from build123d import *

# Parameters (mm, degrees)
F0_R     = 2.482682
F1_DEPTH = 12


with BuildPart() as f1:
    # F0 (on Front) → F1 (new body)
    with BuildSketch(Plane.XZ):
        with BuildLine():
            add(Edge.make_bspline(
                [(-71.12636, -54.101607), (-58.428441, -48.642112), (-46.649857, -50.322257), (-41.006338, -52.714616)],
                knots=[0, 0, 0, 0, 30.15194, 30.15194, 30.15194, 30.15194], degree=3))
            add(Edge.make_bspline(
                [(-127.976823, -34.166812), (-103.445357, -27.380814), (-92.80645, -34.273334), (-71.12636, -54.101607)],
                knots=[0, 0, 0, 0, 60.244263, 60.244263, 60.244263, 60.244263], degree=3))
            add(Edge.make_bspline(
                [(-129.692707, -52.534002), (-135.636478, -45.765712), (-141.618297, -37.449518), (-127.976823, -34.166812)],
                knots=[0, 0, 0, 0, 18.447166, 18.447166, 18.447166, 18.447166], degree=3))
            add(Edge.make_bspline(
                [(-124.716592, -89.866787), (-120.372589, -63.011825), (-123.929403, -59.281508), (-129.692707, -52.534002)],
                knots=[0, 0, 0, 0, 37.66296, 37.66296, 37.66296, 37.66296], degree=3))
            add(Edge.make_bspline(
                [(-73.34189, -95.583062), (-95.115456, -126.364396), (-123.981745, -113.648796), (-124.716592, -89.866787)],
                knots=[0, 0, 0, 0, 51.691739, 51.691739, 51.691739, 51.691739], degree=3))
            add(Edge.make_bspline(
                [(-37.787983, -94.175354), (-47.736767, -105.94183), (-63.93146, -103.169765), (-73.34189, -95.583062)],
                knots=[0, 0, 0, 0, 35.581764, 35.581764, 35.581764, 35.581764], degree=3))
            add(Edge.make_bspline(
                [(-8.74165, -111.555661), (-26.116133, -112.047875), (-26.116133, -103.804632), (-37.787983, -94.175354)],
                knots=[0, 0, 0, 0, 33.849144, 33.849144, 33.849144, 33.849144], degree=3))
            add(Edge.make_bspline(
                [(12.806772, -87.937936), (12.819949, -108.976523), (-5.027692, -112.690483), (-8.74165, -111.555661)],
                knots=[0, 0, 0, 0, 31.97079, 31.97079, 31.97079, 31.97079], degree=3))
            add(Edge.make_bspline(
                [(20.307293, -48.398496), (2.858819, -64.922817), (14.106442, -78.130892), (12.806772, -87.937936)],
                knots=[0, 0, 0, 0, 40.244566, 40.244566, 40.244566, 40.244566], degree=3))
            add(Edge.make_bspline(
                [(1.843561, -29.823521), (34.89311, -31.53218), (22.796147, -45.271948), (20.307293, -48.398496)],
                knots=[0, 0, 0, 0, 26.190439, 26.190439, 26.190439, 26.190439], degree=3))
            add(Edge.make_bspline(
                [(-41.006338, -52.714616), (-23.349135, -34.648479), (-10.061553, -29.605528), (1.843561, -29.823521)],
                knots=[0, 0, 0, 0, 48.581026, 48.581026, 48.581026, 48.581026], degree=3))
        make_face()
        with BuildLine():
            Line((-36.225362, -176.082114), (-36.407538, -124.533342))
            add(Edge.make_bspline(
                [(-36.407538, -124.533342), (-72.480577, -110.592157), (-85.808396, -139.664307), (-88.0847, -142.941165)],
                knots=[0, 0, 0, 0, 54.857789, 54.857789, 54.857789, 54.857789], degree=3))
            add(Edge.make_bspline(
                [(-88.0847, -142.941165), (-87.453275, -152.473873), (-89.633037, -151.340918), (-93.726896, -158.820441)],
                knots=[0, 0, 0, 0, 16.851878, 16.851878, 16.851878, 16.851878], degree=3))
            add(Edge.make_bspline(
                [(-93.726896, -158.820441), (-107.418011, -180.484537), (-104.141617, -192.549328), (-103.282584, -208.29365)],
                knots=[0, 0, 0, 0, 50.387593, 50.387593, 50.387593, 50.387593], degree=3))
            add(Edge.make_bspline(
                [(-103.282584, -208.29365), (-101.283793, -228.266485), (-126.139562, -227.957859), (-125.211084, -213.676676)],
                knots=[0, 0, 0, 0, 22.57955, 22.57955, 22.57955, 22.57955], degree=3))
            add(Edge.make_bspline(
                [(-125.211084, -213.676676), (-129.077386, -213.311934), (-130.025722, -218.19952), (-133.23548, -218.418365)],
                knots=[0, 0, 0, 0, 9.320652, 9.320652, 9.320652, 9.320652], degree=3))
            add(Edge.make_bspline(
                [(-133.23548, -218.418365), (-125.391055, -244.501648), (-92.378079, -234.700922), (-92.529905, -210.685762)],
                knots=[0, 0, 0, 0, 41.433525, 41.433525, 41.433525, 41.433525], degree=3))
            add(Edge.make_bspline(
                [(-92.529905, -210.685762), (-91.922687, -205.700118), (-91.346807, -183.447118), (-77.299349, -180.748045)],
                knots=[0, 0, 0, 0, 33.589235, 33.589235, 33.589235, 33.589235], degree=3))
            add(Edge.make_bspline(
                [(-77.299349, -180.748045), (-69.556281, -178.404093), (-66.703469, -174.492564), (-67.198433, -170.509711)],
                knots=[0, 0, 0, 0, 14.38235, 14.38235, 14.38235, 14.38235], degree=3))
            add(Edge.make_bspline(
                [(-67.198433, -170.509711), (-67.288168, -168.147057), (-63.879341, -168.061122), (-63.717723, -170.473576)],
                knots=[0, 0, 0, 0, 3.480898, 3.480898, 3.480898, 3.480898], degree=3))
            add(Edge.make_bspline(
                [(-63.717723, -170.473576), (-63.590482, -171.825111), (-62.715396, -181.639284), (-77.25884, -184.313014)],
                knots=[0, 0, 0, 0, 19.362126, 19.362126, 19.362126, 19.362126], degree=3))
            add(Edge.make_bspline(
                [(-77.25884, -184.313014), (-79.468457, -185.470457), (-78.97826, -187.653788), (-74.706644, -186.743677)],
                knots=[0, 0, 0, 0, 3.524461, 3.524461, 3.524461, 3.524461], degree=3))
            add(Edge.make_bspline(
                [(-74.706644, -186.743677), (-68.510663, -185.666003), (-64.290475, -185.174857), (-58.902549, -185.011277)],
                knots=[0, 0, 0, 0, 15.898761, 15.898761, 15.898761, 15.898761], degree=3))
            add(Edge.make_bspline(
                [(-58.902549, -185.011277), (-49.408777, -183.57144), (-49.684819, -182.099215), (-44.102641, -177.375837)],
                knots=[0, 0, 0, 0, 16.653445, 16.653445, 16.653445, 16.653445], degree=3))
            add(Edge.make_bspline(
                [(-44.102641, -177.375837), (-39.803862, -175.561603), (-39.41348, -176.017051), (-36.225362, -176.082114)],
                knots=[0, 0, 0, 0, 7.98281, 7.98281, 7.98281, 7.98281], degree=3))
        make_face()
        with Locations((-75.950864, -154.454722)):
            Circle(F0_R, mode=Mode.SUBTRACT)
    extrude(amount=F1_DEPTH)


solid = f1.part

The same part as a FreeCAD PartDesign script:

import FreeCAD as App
import Part
import Sketcher

V = App.Vector

doc = App.newDocument("Part")
params = doc.addObject("Spreadsheet::Sheet", "Params")
for row, (alias, value) in enumerate([
    ("pad1_length", "12 mm"),
], start=1):
    params.set(f"A{row}", alias)
    params.set(f"B{row}", "=" + value)
    params.setAlias(f"B{row}", alias)

body = doc.addObject("PartDesign::Body", "Body")
body.AllowCompound = True

sketch1 = body.newObject("Sketcher::SketchObject", "Sketch")
sketch1.AttachmentSupport = (doc.getObject("XZ_Plane"), [""])
sketch1.MapMode = "FlatFace"
sketch1.addGeometry([
    Part.BSplineCurve([V(-71.12636, -54.101607, 0), V(-58.428441, -48.642112, 0), V(-46.649857, -50.322257, 0), V(-41.006338, -52.714616, 0)], [4, 4], [0, 30.15194], False, 3, [1, 1, 1, 1], False),
    Part.BSplineCurve([V(-127.976823, -34.166812, 0), V(-103.445357, -27.380814, 0), V(-92.80645, -34.273334, 0), V(-71.12636, -54.101607, 0)], [4, 4], [0, 60.244263], False, 3, [1, 1, 1, 1], False),
    Part.BSplineCurve([V(-129.692707, -52.534002, 0), V(-135.636478, -45.765712, 0), V(-141.618297, -37.449518, 0), V(-127.976823, -34.166812, 0)], [4, 4], [0, 18.447166], False, 3, [1, 1, 1, 1], False),
    Part.BSplineCurve([V(-124.716592, -89.866787, 0), V(-120.372589, -63.011825, 0), V(-123.929403, -59.281508, 0), V(-129.692707, -52.534002, 0)], [4, 4], [0, 37.66296], False, 3, [1, 1, 1, 1], False),
    Part.BSplineCurve([V(-73.34189, -95.583062, 0), V(-95.115456, -126.364396, 0), V(-123.981745, -113.648796, 0), V(-124.716592, -89.866787, 0)], [4, 4], [0, 51.691739], False, 3, [1, 1, 1, 1], False),
    Part.BSplineCurve([V(-37.787983, -94.175354, 0), V(-47.736767, -105.94183, 0), V(-63.93146, -103.169765, 0), V(-73.34189, -95.583062, 0)], [4, 4], [0, 35.581764], False, 3, [1, 1, 1, 1], False),
    Part.BSplineCurve([V(-8.74165, -111.555661, 0), V(-26.116133, -112.047875, 0), V(-26.116133, -103.804632, 0), V(-37.787983, -94.175354, 0)], [4, 4], [0, 33.849144], False, 3, [1, 1, 1, 1], False),
    Part.BSplineCurve([V(12.806772, -87.937936, 0), V(12.819949, -108.976523, 0), V(-5.027692, -112.690483, 0), V(-8.74165, -111.555661, 0)], [4, 4], [0, 31.97079], False, 3, [1, 1, 1, 1], False),
    Part.BSplineCurve([V(20.307293, -48.398496, 0), V(2.858819, -64.922817, 0), V(14.106442, -78.130892, 0), V(12.806772, -87.937936, 0)], [4, 4], [0, 40.244566], False, 3, [1, 1, 1, 1], False),
    Part.BSplineCurve([V(1.843561, -29.823521, 0), V(34.89311, -31.53218, 0), V(22.796147, -45.271948, 0), V(20.307293, -48.398496, 0)], [4, 4], [0, 26.190439], False, 3, [1, 1, 1, 1], False),
    Part.BSplineCurve([V(-41.006338, -52.714616, 0), V(-23.349135, -34.648479, 0), V(-10.061553, -29.605528, 0), V(1.843561, -29.823521, 0)], [4, 4], [0, 48.581026], False, 3, [1, 1, 1, 1], False),
    Part.LineSegment(V(-36.225362, -176.082114, 0), V(-36.407538, -124.533342, 0)),
    Part.BSplineCurve([V(-36.407538, -124.533342, 0), V(-72.480577, -110.592157, 0), V(-85.808396, -139.664307, 0), V(-88.0847, -142.941165, 0)], [4, 4], [0, 54.857789], False, 3, [1, 1, 1, 1], False),
    Part.BSplineCurve([V(-88.0847, -142.941165, 0), V(-87.453275, -152.473873, 0), V(-89.633037, -151.340918, 0), V(-93.726896, -158.820441, 0)], [4, 4], [0, 16.851878], False, 3, [1, 1, 1, 1], False),
    Part.BSplineCurve([V(-93.726896, -158.820441, 0), V(-107.418011, -180.484537, 0), V(-104.141617, -192.549328, 0), V(-103.282584, -208.29365, 0)], [4, 4], [0, 50.387593], False, 3, [1, 1, 1, 1], False),
    Part.BSplineCurve([V(-103.282584, -208.29365, 0), V(-101.283793, -228.266485, 0), V(-126.139562, -227.957859, 0), V(-125.211084, -213.676676, 0)], [4, 4], [0, 22.57955], False, 3, [1, 1, 1, 1], False),
    Part.BSplineCurve([V(-125.211084, -213.676676, 0), V(-129.077386, -213.311934, 0), V(-130.025722, -218.19952, 0), V(-133.23548, -218.418365, 0)], [4, 4], [0, 9.320652], False, 3, [1, 1, 1, 1], False),
    Part.BSplineCurve([V(-133.23548, -218.418365, 0), V(-125.391055, -244.501648, 0), V(-92.378079, -234.700922, 0), V(-92.529905, -210.685762, 0)], [4, 4], [0, 41.433525], False, 3, [1, 1, 1, 1], False),
    Part.BSplineCurve([V(-92.529905, -210.685762, 0), V(-91.922687, -205.700118, 0), V(-91.346807, -183.447118, 0), V(-77.299349, -180.748045, 0)], [4, 4], [0, 33.589235], False, 3, [1, 1, 1, 1], False),
    Part.BSplineCurve([V(-77.299349, -180.748045, 0), V(-69.556281, -178.404093, 0), V(-66.703469, -174.492564, 0), V(-67.198433, -170.509711, 0)], [4, 4], [0, 14.38235], False, 3, [1, 1, 1, 1], False),
    Part.BSplineCurve([V(-67.198433, -170.509711, 0), V(-67.288168, -168.147057, 0), V(-63.879341, -168.061122, 0), V(-63.717723, -170.473576, 0)], [4, 4], [0, 3.480898], False, 3, [1, 1, 1, 1], False),
    Part.BSplineCurve([V(-63.717723, -170.473576, 0), V(-63.590482, -171.825111, 0), V(-62.715396, -181.639284, 0), V(-77.25884, -184.313014, 0)], [4, 4], [0, 19.362126], False, 3, [1, 1, 1, 1], False),
    Part.BSplineCurve([V(-77.25884, -184.313014, 0), V(-79.468457, -185.470457, 0), V(-78.97826, -187.653788, 0), V(-74.706644, -186.743677, 0)], [4, 4], [0, 3.524461], False, 3, [1, 1, 1, 1], False),
    Part.BSplineCurve([V(-74.706644, -186.743677, 0), V(-68.510663, -185.666003, 0), V(-64.290475, -185.174857, 0), V(-58.902549, -185.011277, 0)], [4, 4], [0, 15.898761], False, 3, [1, 1, 1, 1], False),
    Part.BSplineCurve([V(-58.902549, -185.011277, 0), V(-49.408777, -183.57144, 0), V(-49.684819, -182.099215, 0), V(-44.102641, -177.375837, 0)], [4, 4], [0, 16.653445], False, 3, [1, 1, 1, 1], False),
    Part.BSplineCurve([V(-44.102641, -177.375837, 0), V(-39.803862, -175.561603, 0), V(-39.41348, -176.017051, 0), V(-36.225362, -176.082114, 0)], [4, 4], [0, 7.98281], False, 3, [1, 1, 1, 1], False),
    Part.Circle(V(-75.950864, -154.454722, 0), V(0, 0, 1), 2.482682),
], False)
sketch1.addConstraint([
    Sketcher.Constraint("Block", 0),
    Sketcher.Constraint("Block", 1),
    Sketcher.Constraint("Block", 2),
    Sketcher.Constraint("Block", 3),
    Sketcher.Constraint("Block", 4),
    Sketcher.Constraint("Block", 5),
    Sketcher.Constraint("Block", 6),
    Sketcher.Constraint("Block", 7),
    Sketcher.Constraint("Block", 8),
    Sketcher.Constraint("Block", 9),
    Sketcher.Constraint("Block", 10),
    Sketcher.Constraint("Block", 12),
    Sketcher.Constraint("Block", 13),
    Sketcher.Constraint("Block", 14),
    Sketcher.Constraint("Block", 15),
    Sketcher.Constraint("Block", 16),
    Sketcher.Constraint("Block", 17),
    Sketcher.Constraint("Block", 18),
    Sketcher.Constraint("Block", 19),
    Sketcher.Constraint("Block", 20),
    Sketcher.Constraint("Block", 21),
    Sketcher.Constraint("Block", 22),
    Sketcher.Constraint("Block", 23),
    Sketcher.Constraint("Block", 24),
    Sketcher.Constraint("Block", 25),
    Sketcher.Constraint("Coincident", 11, 2, 12, 1),
    Sketcher.Constraint("Coincident", 25, 2, 11, 1),
    Sketcher.Constraint("Diameter", 26, 4.965364),
    Sketcher.Constraint("DistanceY", 26, 3, -1, 1, 154.454722),
    Sketcher.Constraint("DistanceX", 26, 3, -1, 1, 75.950864),
])
pad1 = body.newObject("PartDesign::Pad", "Pad")
pad1.Profile = sketch1
pad1.setExpression("Length", "Params.pad1_length")

doc.recompute()
